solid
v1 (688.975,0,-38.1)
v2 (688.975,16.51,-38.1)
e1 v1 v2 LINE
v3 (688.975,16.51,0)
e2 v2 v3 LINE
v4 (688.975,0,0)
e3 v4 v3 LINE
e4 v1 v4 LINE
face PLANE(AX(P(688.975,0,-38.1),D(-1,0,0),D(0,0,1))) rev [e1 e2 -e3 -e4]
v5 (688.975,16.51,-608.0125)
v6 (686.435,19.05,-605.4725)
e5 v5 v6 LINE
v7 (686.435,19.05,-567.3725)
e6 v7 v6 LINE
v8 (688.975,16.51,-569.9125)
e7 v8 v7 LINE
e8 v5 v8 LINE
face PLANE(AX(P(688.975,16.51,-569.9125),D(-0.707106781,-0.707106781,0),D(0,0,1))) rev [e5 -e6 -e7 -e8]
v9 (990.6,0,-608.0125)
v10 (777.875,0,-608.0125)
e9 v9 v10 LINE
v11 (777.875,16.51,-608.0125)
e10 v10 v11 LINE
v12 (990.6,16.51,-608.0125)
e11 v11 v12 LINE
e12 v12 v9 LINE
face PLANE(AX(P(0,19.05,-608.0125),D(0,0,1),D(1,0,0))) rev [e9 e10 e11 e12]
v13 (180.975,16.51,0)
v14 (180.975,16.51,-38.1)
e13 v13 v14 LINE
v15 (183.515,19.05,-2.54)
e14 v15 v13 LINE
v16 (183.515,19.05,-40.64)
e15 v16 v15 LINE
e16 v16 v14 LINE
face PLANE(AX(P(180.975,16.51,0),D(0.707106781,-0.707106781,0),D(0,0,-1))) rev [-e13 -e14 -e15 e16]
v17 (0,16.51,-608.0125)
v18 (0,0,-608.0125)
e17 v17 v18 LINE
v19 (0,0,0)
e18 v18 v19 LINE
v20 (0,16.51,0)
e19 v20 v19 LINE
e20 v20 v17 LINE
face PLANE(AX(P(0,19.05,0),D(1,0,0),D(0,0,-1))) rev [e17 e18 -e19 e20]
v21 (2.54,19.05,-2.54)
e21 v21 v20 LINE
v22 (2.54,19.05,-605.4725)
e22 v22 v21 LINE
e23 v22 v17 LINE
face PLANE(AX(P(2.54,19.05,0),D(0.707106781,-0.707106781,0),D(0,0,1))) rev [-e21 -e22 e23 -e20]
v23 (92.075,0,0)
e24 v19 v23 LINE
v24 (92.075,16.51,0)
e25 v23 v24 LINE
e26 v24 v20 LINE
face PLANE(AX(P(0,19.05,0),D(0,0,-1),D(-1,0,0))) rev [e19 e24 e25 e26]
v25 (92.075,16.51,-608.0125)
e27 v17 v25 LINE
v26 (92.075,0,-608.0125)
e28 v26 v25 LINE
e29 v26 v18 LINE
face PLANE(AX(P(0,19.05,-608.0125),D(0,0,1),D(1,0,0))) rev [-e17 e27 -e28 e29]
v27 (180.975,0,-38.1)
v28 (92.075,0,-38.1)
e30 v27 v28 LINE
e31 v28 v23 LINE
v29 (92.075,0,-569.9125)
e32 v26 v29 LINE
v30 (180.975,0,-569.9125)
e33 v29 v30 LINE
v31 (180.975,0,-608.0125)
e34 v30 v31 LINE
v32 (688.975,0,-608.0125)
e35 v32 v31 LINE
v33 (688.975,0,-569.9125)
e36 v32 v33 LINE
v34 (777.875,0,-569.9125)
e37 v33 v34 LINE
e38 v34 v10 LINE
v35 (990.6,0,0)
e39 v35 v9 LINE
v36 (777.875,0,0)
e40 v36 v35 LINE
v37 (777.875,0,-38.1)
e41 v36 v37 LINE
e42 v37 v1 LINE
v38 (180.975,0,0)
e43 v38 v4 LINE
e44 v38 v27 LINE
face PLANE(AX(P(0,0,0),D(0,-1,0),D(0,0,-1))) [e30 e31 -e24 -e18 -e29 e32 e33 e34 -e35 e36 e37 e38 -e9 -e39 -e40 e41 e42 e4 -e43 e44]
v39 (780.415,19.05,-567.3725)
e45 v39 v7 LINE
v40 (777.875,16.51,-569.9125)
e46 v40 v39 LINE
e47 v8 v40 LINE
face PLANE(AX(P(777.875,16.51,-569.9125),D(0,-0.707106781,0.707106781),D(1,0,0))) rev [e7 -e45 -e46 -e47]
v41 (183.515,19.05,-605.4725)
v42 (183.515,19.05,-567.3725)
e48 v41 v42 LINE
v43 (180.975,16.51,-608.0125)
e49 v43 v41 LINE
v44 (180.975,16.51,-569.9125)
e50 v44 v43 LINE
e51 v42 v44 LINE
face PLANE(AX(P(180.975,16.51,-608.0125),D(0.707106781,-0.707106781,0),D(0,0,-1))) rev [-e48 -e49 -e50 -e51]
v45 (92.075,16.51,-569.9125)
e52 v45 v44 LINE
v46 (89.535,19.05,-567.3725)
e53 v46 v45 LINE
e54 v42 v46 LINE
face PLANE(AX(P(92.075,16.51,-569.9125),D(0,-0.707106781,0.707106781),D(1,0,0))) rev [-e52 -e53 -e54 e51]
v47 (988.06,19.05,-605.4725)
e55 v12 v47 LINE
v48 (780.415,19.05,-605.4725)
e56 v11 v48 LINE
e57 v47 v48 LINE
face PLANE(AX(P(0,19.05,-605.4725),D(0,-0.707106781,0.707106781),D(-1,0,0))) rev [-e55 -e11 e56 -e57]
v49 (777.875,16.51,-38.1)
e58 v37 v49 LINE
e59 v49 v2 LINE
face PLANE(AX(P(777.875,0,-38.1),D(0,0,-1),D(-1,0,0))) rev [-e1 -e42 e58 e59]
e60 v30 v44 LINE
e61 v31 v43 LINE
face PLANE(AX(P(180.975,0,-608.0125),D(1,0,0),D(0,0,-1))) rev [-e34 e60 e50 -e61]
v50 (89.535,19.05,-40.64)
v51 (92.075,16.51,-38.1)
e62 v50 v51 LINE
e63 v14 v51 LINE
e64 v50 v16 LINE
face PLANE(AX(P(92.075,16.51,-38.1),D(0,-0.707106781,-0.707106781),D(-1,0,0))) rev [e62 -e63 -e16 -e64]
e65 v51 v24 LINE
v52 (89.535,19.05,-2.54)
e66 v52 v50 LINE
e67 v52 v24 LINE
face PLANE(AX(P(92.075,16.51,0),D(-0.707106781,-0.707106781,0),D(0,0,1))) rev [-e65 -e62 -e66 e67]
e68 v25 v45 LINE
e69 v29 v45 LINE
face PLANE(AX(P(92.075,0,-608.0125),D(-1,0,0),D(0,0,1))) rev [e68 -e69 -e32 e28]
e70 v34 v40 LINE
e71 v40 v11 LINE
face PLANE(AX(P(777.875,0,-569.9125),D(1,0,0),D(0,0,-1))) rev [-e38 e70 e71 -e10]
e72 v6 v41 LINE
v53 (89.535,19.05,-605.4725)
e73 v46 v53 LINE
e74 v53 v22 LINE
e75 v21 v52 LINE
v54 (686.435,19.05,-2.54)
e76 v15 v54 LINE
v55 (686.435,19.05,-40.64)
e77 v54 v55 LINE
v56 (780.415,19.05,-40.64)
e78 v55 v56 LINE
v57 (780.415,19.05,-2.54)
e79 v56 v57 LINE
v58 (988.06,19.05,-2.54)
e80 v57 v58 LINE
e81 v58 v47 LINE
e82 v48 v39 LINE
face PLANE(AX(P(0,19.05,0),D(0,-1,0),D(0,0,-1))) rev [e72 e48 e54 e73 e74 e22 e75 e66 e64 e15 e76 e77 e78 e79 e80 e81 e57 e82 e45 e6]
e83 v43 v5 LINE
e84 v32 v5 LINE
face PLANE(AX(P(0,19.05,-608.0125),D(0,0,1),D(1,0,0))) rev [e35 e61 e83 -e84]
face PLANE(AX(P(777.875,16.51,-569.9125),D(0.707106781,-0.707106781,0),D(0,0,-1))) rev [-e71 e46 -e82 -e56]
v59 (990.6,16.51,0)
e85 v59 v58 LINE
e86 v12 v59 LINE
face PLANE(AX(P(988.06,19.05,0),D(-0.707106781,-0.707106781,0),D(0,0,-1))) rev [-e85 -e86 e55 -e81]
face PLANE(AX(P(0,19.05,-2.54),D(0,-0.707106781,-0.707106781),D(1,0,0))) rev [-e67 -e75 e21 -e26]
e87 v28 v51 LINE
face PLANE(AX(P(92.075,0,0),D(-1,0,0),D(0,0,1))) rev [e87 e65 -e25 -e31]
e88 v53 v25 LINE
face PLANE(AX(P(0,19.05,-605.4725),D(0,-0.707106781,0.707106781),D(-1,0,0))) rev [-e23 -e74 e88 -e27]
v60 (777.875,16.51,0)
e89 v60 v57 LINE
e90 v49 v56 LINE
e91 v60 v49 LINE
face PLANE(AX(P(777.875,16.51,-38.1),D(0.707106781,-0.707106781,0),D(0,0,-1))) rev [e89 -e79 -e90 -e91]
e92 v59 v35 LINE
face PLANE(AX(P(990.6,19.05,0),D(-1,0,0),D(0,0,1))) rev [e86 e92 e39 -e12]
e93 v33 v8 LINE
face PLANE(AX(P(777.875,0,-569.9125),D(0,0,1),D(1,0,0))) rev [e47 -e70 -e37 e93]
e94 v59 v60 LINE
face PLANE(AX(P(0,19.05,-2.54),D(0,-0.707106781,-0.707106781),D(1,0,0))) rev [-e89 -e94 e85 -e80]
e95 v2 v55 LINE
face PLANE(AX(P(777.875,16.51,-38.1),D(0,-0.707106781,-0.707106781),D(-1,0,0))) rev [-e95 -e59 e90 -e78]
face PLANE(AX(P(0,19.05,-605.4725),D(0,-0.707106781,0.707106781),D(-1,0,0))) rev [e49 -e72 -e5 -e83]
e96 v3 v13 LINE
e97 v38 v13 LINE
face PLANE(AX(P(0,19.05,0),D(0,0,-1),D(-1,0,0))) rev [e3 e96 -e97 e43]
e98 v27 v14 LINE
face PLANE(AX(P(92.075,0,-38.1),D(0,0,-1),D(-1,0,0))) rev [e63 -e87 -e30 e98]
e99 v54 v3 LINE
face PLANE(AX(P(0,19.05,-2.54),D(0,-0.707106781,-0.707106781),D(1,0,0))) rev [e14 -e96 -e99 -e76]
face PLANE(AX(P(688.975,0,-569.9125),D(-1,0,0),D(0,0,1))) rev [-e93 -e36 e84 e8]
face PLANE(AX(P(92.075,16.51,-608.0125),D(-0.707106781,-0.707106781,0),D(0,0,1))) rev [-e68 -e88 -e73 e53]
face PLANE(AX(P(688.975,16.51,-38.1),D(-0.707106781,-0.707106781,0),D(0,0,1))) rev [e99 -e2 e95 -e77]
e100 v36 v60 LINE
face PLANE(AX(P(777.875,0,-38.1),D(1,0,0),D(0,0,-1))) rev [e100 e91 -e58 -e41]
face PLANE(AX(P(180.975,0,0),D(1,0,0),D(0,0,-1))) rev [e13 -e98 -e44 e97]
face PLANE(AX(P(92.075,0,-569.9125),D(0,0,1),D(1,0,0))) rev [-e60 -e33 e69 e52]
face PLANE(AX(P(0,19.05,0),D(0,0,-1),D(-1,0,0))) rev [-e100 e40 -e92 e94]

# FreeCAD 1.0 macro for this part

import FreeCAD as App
import Part
import Sketcher
from FreeCAD import Vector
Q = App.Units.Quantity


def edges_at(feature, points):
    """Names of the edges that pass closest to the given points."""
    edges = feature.Shape.Edges
    near = lambda p: min(range(len(edges)), key=lambda i: edges[i].distToShape(Part.Vertex(*p))[0])
    return sorted({f"Edge{near(p) + 1}" for p in points})

doc = App.newDocument("Part")
params = doc.addObject("Spreadsheet::Sheet", "Params")
for row, (alias, value) in enumerate([
    ("sketch1_width", "39 in"),
    ("sketch1_height", "23.9375 in"),
    ("pad1_length", "0.75 in"),
    ("sketch2_width", "3.5 in"),
    ("sketch2_height", "1.5 in"),
    ("chamfer_size", "0.1 in"),
], start=1):
    params.set(f"A{row}", alias)
    params.set(f"B{row}", "=" + value)
    params.setAlias(f"B{row}", alias)

body = doc.addObject("PartDesign::Body", "Body")

# Sketch on XZ plane
sketch1 = body.newObject("Sketcher::SketchObject", "Sketch")
sketch1.AttachmentSupport = (doc.getObject("XZ_Plane"), [""])
sketch1.MapMode = "FlatFace"
sketch1.addGeometry([
    Part.LineSegment(Vector(0, -608.0125, 0), Vector(0, 0, 0)),
    Part.LineSegment(Vector(0, 0, 0), Vector(990.6, 0, 0)),
    Part.LineSegment(Vector(990.6, 0, 0), Vector(990.6, -608.0125, 0)),
    Part.LineSegment(Vector(990.6, -608.0125, 0), Vector(0, -608.0125, 0)),
], False)
sketch1.addConstraint([
    Sketcher.Constraint("Coincident", 0, 2, 1, 1),
    Sketcher.Constraint("Coincident", 1, 2, 2, 1),
    Sketcher.Constraint("Coincident", 2, 2, 3, 1),
    Sketcher.Constraint("Coincident", 3, 2, 0, 1),
    Sketcher.Constraint("Vertical", 0),
    Sketcher.Constraint("Horizontal", 1),
    Sketcher.Constraint("Vertical", 2),
    Sketcher.Constraint("Horizontal", 3),
    Sketcher.Constraint("Coincident", 0, 2, -1, 1),
    Sketcher.Constraint("DistanceX", 1, 1, 1, 2, Q("39 in")),
    Sketcher.Constraint("DistanceY", 0, 1, 0, 2, Q("23.9375 in")),
])
sketch1.setExpression("Constraints[9]", "Params.sketch1_width")
sketch1.setExpression("Constraints[10]", "Params.sketch1_height")
pad1 = body.newObject("PartDesign::Pad", "Pad")
pad1.Profile = sketch1
pad1.setExpression("Length", "Params.pad1_length")
pad1.Reversed = True

# Sketch on XZ plane
sketch2 = body.newObject("Sketcher::SketchObject", "Sketch001")
sketch2.AttachmentSupport = (doc.getObject("XZ_Plane"), [""])
sketch2.MapMode = "FlatFace"
sketch2.AttachmentOffset = App.Placement(Vector(0, 0, -0.75 * 25.4), App.Rotation())
sketch2.addGeometry([
    Part.LineSegment(Vector(688.975, -608.0125, 0), Vector(688.975, -569.9125, 0)),  # 0
    Part.LineSegment(Vector(688.975, -569.9125, 0), Vector(777.875, -569.9125, 0)),  # 1
    Part.LineSegment(Vector(777.875, -569.9125, 0), Vector(777.875, -608.0125, 0)),  # 2
    Part.LineSegment(Vector(777.875, -608.0125, 0), Vector(688.975, -608.0125, 0)),  # 3
    Part.LineSegment(Vector(92.075, -608.0125, 0), Vector(92.075, -569.9125, 0)),  # 4
    Part.LineSegment(Vector(92.075, -569.9125, 0), Vector(180.975, -569.9125, 0)),  # 5
    Part.LineSegment(Vector(180.975, -569.9125, 0), Vector(180.975, -608.0125, 0)),  # 6
    Part.LineSegment(Vector(180.975, -608.0125, 0), Vector(92.075, -608.0125, 0)),  # 7
    Part.LineSegment(Vector(92.075, -38.1, 0), Vector(92.075, 0, 0)),  # 8
    Part.LineSegment(Vector(92.075, 0, 0), Vector(180.975, 0, 0)),  # 9
    Part.LineSegment(Vector(180.975, 0, 0), Vector(180.975, -38.1, 0)),  # 10
    Part.LineSegment(Vector(180.975, -38.1, 0), Vector(92.075, -38.1, 0)),  # 11
    Part.LineSegment(Vector(688.975, -38.1, 0), Vector(688.975, 0, 0)),  # 12
    Part.LineSegment(Vector(688.975, 0, 0), Vector(777.875, 0, 0)),  # 13
    Part.LineSegment(Vector(777.875, 0, 0), Vector(777.875, -38.1, 0)),  # 14
    Part.LineSegment(Vector(777.875, -38.1, 0), Vector(688.975, -38.1, 0)),  # 15
], False)
sketch2.addConstraint([
    Sketcher.Constraint("Coincident", 0, 2, 1, 1),
    Sketcher.Constraint("Coincident", 1, 2, 2, 1),
    Sketcher.Constraint("Coincident", 2, 2, 3, 1),
    Sketcher.Constraint("Coincident", 3, 2, 0, 1),
    Sketcher.Constraint("Coincident", 4, 2, 5, 1),
    Sketcher.Constraint("Coincident", 5, 2, 6, 1),
    Sketcher.Constraint("Coincident", 6, 2, 7, 1),
    Sketcher.Constraint("Coincident", 7, 2, 4, 1),
    Sketcher.Constraint("Coincident", 8, 2, 9, 1),
    Sketcher.Constraint("Coincident", 9, 2, 10, 1),
    Sketcher.Constraint("Coincident", 10, 2, 11, 1),
    Sketcher.Constraint("Coincident", 11, 2, 8, 1),
    Sketcher.Constraint("Coincident", 12, 2, 13, 1),
    Sketcher.Constraint("Coincident", 13, 2, 14, 1),
    Sketcher.Constraint("Coincident", 14, 2, 15, 1),
    Sketcher.Constraint("Coincident", 15, 2, 12, 1),
    Sketcher.Constraint("Vertical", 0),
    Sketcher.Constraint("Horizontal", 1),
    Sketcher.Constraint("Vertical", 2),
    Sketcher.Constraint("Horizontal", 3),
    Sketcher.Constraint("Vertical", 4),
    Sketcher.Constraint("Horizontal", 5),
    Sketcher.Constraint("Vertical", 6),
    Sketcher.Constraint("Horizontal", 7),
    Sketcher.Constraint("Vertical", 8),
    Sketcher.Constraint("Horizontal", 9),
    Sketcher.Constraint("Vertical", 10),
    Sketcher.Constraint("Horizontal", 11),
    Sketcher.Constraint("Vertical", 12),
    Sketcher.Constraint("Horizontal", 13),
    Sketcher.Constraint("Vertical", 14),
    Sketcher.Constraint("Horizontal", 15),
    Sketcher.Constraint("PointOnObject", 8, 2, -1),
    Sketcher.Constraint("PointOnObject", 12, 2, -1),
    Sketcher.Constraint("Horizontal", 1, 2, 4, 2),
    Sketcher.Constraint("Horizontal", 3, 2, 6, 2),
    Sketcher.Constraint("Horizontal", 11, 2, 14, 2),
    Sketcher.Constraint("Vertical", 7, 2, 8, 2),
    Sketcher.Constraint("Vertical", 6, 2, 9, 2),
    Sketcher.Constraint("Vertical", 3, 2, 12, 2),
    Sketcher.Constraint("Vertical", 2, 2, 13, 2),
    Sketcher.Constraint("Equal", 3, 5),
    Sketcher.Constraint("Equal", 6, 8),
    Sketcher.Constraint("DistanceX", 1, 1, 1, 2, Q("3.5 in")),
    Sketcher.Constraint("DistanceY", 0, 1, 0, 2, Q("1.5 in")),
    Sketcher.Constraint("DistanceX", 4, 2, 1, 2, Q("27 in")),
    Sketcher.Constraint("DistanceX", -1, 1, 0, 2, Q("27.125 in")),
    Sketcher.Constraint("DistanceY", 0, 2, -1, 1, Q("22.4375 in")),
])
sketch2.setExpression("Constraints[43]", "Params.sketch2_width")
sketch2.setExpression("Constraints[44]", "Params.sketch2_height")
pocket1 = body.newObject("PartDesign::Pocket", "Pocket")
pocket1.Profile = sketch2
pocket1.Type = "ThroughAll"
pocket1.Reversed = True
doc.recompute()

chamfer = body.newObject("PartDesign::Chamfer", "Chamfer")
chamfer.Base = (pocket1, edges_at(pocket1, [
    (990.6, 19.05, -304.006),
    (884.237, 19.05, -608.013),
    (434.975, 19.05, 0),
    (884.237, 19.05, 0),
    (434.975, 19.05, -608.013),
    (46.038, 19.05, -608.013),
    (733.425, 19.05, -38.1),
    (688.975, 19.05, -19.05),
    (777.875, 19.05, -19.05),
    (180.975, 19.05, -19.05),
    (136.525, 19.05, -38.1),
    (92.075, 19.05, -19.05),
    (92.075, 19.05, -588.962),
    (136.525, 19.05, -569.913),
    (180.975, 19.05, -588.962),
    (0, 19.05, -304.006),
    (777.875, 19.05, -588.962),
    (688.975, 19.05, -588.962),
    (733.425, 19.05, -569.913),
    (46.038, 19.05, 0),
]))
chamfer.setExpression("Size", "Params.chamfer_size")

doc.recompute()
